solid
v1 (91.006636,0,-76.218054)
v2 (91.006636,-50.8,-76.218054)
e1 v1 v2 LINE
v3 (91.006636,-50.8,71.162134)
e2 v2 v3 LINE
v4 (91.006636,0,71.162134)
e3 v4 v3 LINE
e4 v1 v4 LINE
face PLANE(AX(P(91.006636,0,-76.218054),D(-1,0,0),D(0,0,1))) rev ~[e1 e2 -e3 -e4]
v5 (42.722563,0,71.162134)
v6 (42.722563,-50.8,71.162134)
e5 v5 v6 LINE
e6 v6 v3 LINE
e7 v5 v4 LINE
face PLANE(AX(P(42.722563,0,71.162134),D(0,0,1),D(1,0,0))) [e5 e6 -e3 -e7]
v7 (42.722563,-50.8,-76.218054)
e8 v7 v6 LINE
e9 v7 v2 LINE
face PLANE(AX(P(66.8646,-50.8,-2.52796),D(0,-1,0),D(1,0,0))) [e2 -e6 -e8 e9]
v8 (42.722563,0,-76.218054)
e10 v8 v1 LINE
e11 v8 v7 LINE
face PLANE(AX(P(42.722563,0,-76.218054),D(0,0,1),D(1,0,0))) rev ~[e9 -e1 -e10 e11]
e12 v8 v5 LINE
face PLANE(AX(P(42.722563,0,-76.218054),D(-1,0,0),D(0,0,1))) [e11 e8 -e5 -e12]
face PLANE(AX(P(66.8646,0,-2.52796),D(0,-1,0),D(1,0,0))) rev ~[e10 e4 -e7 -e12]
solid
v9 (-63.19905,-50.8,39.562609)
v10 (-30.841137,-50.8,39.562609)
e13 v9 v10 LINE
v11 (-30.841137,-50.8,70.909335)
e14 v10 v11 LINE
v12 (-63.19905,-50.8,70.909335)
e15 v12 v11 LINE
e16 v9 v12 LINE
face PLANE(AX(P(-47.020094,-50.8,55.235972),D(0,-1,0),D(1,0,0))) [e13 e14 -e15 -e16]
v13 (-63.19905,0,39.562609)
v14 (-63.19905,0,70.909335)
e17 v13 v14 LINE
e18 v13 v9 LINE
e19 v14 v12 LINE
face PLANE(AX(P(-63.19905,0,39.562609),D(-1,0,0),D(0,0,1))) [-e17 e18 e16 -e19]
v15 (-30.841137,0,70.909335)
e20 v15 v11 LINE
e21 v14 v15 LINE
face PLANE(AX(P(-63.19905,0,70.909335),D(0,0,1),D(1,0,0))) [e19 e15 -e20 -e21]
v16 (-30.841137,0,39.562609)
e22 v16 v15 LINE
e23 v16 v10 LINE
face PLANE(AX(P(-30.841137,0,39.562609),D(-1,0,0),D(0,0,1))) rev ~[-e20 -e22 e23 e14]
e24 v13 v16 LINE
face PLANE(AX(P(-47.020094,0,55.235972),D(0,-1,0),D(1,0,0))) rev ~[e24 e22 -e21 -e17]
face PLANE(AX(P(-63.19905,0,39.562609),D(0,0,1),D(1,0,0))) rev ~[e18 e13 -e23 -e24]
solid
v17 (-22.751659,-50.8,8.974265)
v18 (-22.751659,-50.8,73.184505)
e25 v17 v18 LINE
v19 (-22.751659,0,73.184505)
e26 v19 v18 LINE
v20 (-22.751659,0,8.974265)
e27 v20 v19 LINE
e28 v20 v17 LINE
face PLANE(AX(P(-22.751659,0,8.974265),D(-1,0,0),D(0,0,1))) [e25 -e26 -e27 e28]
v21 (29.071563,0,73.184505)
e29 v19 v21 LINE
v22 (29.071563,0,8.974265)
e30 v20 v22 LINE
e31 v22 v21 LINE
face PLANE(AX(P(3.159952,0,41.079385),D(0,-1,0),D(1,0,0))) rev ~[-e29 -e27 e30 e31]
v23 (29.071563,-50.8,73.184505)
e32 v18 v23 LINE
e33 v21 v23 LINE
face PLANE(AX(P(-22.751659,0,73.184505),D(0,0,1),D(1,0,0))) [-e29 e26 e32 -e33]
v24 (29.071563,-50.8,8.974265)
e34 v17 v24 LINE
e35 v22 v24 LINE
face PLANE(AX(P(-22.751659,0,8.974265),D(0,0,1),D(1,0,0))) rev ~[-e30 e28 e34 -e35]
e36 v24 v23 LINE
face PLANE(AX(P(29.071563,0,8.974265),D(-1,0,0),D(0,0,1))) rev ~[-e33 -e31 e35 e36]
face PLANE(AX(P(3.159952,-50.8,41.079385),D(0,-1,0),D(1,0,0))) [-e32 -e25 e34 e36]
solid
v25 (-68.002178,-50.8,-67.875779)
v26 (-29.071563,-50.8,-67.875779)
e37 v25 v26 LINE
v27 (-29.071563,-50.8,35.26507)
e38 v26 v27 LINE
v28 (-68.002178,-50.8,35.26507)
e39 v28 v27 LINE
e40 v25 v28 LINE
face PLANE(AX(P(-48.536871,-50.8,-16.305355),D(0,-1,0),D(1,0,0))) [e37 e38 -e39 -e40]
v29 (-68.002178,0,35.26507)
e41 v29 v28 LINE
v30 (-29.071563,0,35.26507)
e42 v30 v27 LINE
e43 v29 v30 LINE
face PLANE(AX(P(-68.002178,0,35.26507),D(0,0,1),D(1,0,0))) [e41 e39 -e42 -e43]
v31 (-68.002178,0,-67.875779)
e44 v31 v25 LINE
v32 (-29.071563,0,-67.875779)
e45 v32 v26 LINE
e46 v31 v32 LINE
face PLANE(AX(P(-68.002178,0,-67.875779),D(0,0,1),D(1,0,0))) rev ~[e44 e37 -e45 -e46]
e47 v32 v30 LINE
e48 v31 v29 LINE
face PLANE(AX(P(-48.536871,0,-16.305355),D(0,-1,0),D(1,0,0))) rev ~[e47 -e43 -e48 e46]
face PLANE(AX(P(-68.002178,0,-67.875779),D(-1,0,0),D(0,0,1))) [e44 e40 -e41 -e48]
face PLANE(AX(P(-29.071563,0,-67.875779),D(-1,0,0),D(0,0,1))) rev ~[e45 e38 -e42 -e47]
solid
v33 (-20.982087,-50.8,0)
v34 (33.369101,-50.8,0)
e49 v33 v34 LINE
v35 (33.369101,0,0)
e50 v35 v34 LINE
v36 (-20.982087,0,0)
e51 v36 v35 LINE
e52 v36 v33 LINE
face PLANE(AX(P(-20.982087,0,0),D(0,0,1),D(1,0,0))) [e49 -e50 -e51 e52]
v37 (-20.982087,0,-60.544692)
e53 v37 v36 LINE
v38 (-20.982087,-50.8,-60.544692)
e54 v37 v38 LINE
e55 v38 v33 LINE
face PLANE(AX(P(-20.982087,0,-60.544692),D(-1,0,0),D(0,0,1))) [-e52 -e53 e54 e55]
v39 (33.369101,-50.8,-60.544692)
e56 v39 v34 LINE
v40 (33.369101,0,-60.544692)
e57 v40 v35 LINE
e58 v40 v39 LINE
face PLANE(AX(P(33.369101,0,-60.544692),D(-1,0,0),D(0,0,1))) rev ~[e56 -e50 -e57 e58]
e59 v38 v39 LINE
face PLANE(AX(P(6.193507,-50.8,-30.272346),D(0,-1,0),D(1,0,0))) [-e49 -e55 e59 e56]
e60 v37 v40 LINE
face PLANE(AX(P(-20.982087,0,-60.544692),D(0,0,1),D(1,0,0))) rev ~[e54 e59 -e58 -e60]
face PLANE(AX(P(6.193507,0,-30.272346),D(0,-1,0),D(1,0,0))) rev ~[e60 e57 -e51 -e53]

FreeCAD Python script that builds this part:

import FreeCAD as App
import Part
import Sketcher

doc = App.newDocument("Part")
params = doc.addObject("Spreadsheet::Sheet", "Params")
for row, (alias, value) in enumerate([
    ("pad1_length", "2 in"),
], start=1):
    params.set(f"A{row}", alias)
    params.set(f"B{row}", "=" + value)
    params.setAlias(f"B{row}", alias)

body = doc.addObject("PartDesign::Body", "Body")
body.AllowCompound = True

sketch1 = body.newObject("Sketcher::SketchObject", "Sketch")
sketch1.AttachmentSupport = (doc.getObject("XZ_Plane"), [""])
sketch1.MapMode = "FlatFace"
sketch1.addGeometry(Part.LineSegment(App.Vector(-23, 73, 0), App.Vector(-23, 9, 0)), False)
sketch1.addGeometry(Part.LineSegment(App.Vector(-23, 9, 0), App.Vector(29, 9, 0)), False)
sketch1.addGeometry(Part.LineSegment(App.Vector(29, 9, 0), App.Vector(29, 73, 0)), False)
sketch1.addGeometry(Part.LineSegment(App.Vector(29, 73, 0), App.Vector(-23, 73, 0)), False)
sketch1.addGeometry(Part.LineSegment(App.Vector(-68, 35, 0), App.Vector(-68, -68, 0)), False)
sketch1.addGeometry(Part.LineSegment(App.Vector(-68, -68, 0), App.Vector(-29, -68, 0)), False)
sketch1.addGeometry(Part.LineSegment(App.Vector(-29, -68, 0), App.Vector(-29, 35, 0)), False)
sketch1.addGeometry(Part.LineSegment(App.Vector(-29, 35, 0), App.Vector(-68, 35, 0)), False)
sketch1.addGeometry(Part.LineSegment(App.Vector(-21, 0, 0), App.Vector(-21, -61, 0)), False)
sketch1.addGeometry(Part.LineSegment(App.Vector(-21, -61, 0), App.Vector(33, -61, 0)), False)
sketch1.addGeometry(Part.LineSegment(App.Vector(33, -61, 0), App.Vector(33, 0, 0)), False)
sketch1.addGeometry(Part.LineSegment(App.Vector(33, 0, 0), App.Vector(-21, 0, 0)), False)
sketch1.addGeometry(Part.LineSegment(App.Vector(43, 71, 0), App.Vector(43, -76, 0)), False)
sketch1.addGeometry(Part.LineSegment(App.Vector(43, -76, 0), App.Vector(91, -76, 0)), False)
sketch1.addGeometry(Part.LineSegment(App.Vector(91, -76, 0), App.Vector(91, 71, 0)), False)
sketch1.addGeometry(Part.LineSegment(App.Vector(91, 71, 0), App.Vector(43, 71, 0)), False)
sketch1.addGeometry(Part.LineSegment(App.Vector(-63, 71, 0), App.Vector(-63, 40, 0)), False)
sketch1.addGeometry(Part.LineSegment(App.Vector(-63, 40, 0), App.Vector(-31, 40, 0)), False)
sketch1.addGeometry(Part.LineSegment(App.Vector(-31, 40, 0), App.Vector(-31, 71, 0)), False)
sketch1.addGeometry(Part.LineSegment(App.Vector(-31, 71, 0), App.Vector(-63, 71, 0)), False)
sketch1.addConstraint(Sketcher.Constraint("Coincident", 0, 2, 1, 1))
sketch1.addConstraint(Sketcher.Constraint("Coincident", 1, 2, 2, 1))
sketch1.addConstraint(Sketcher.Constraint("Coincident", 2, 2, 3, 1))
sketch1.addConstraint(Sketcher.Constraint("Coincident", 3, 2, 0, 1))
sketch1.addConstraint(Sketcher.Constraint("Coincident", 4, 2, 5, 1))
sketch1.addConstraint(Sketcher.Constraint("Coincident", 5, 2, 6, 1))
sketch1.addConstraint(Sketcher.Constraint("Coincident", 6, 2, 7, 1))
sketch1.addConstraint(Sketcher.Constraint("Coincident", 7, 2, 4, 1))
sketch1.addConstraint(Sketcher.Constraint("Coincident", 8, 2, 9, 1))
sketch1.addConstraint(Sketcher.Constraint("Coincident", 9, 2, 10, 1))
sketch1.addConstraint(Sketcher.Constraint("Coincident", 10, 2, 11, 1))
sketch1.addConstraint(Sketcher.Constraint("Coincident", 11, 2, 8, 1))
sketch1.addConstraint(Sketcher.Constraint("Coincident", 12, 2, 13, 1))
sketch1.addConstraint(Sketcher.Constraint("Coincident", 13, 2, 14, 1))
sketch1.addConstraint(Sketcher.Constraint("Coincident", 14, 2, 15, 1))
sketch1.addConstraint(Sketcher.Constraint("Coincident", 15, 2, 12, 1))
sketch1.addConstraint(Sketcher.Constraint("Coincident", 16, 2, 17, 1))
sketch1.addConstraint(Sketcher.Constraint("Coincident", 17, 2, 18, 1))
sketch1.addConstraint(Sketcher.Constraint("Coincident", 18, 2, 19, 1))
sketch1.addConstraint(Sketcher.Constraint("Coincident", 19, 2, 16, 1))
sketch1.addConstraint(Sketcher.Constraint("Vertical", 0))
sketch1.addConstraint(Sketcher.Constraint("Horizontal", 1))
sketch1.addConstraint(Sketcher.Constraint("Vertical", 2))
sketch1.addConstraint(Sketcher.Constraint("Horizontal", 3))
sketch1.addConstraint(Sketcher.Constraint("Vertical", 4))
sketch1.addConstraint(Sketcher.Constraint("Horizontal", 5))
sketch1.addConstraint(Sketcher.Constraint("Vertical", 6))
sketch1.addConstraint(Sketcher.Constraint("Horizontal", 7))
sketch1.addConstraint(Sketcher.Constraint("Vertical", 8))
sketch1.addConstraint(Sketcher.Constraint("Horizontal", 9))
sketch1.addConstraint(Sketcher.Constraint("Vertical", 10))
sketch1.addConstraint(Sketcher.Constraint("Horizontal", 11))
sketch1.addConstraint(Sketcher.Constraint("Vertical", 12))
sketch1.addConstraint(Sketcher.Constraint("Horizontal", 13))
sketch1.addConstraint(Sketcher.Constraint("Vertical", 14))
sketch1.addConstraint(Sketcher.Constraint("Horizontal", 15))
sketch1.addConstraint(Sketcher.Constraint("Vertical", 16))
sketch1.addConstraint(Sketcher.Constraint("Horizontal", 17))
sketch1.addConstraint(Sketcher.Constraint("Vertical", 18))
sketch1.addConstraint(Sketcher.Constraint("Horizontal", 19))
sketch1.addConstraint(Sketcher.Constraint("PointOnObject", 10, 2, -1))
sketch1.addConstraint(Sketcher.Constraint("DistanceX", 9, 1, 9, 2, 54.351189))
sketch1.addConstraint(Sketcher.Constraint("DistanceY", 0, 2, 0, 1, 64.21024))
sketch1.addConstraint(Sketcher.Constraint("DistanceY", 4, 2, 4, 1, 103.140849))
sketch1.addConstraint(Sketcher.Constraint("DistanceY", 8, 2, 8, 1, 60.544692))
sketch1.addConstraint(Sketcher.Constraint("DistanceX", -1, 1, 9, 2, 33.369101))
sketch1.addConstraint(Sketcher.Constraint("DistanceX", 1, 2, 12, 2, 13.651))
sketch1.addConstraint(Sketcher.Constraint("DistanceX", 6, 2, 14, 2, 120.0782))
sketch1.addConstraint(Sketcher.Constraint("DistanceX", 1, 1, 1, 2, 51.823223))
sketch1.addConstraint(Sketcher.Constraint("DistanceX", 5, 1, 5, 2, 38.930615))
sketch1.addConstraint(Sketcher.Constraint("DistanceX", 13, 1, 13, 2, 48.284073))
sketch1.addConstraint(Sketcher.Constraint("DistanceX", 17, 1, 17, 2, 32.357913))
sketch1.addConstraint(Sketcher.Constraint("DistanceY", 12, 2, 12, 1, 147.380188))
sketch1.addConstraint(Sketcher.Constraint("DistanceY", 16, 2, 16, 1, 31.346727))
sketch1.addConstraint(Sketcher.Constraint("DistanceX", 0, 2, -1, 1, 22.751659))
sketch1.addConstraint(Sketcher.Constraint("DistanceY", 4, 2, -1, 1, 67.875779))
sketch1.addConstraint(Sketcher.Constraint("DistanceX", 16, 2, -1, 1, 63.19905))
sketch1.addConstraint(Sketcher.Constraint("DistanceY", -1, 1, 16, 2, 39.562609))
sketch1.addConstraint(Sketcher.Constraint("DistanceY", 12, 2, 9, 2, 15.673362))
sketch1.addConstraint(Sketcher.Constraint("DistanceY", 12, 2, 1, 2, 85.192319))
pad1 = body.newObject("PartDesign::Pad", "Pad")
pad1.Profile = sketch1
pad1.setExpression("Length", "Params.pad1_length")

doc.recompute()
